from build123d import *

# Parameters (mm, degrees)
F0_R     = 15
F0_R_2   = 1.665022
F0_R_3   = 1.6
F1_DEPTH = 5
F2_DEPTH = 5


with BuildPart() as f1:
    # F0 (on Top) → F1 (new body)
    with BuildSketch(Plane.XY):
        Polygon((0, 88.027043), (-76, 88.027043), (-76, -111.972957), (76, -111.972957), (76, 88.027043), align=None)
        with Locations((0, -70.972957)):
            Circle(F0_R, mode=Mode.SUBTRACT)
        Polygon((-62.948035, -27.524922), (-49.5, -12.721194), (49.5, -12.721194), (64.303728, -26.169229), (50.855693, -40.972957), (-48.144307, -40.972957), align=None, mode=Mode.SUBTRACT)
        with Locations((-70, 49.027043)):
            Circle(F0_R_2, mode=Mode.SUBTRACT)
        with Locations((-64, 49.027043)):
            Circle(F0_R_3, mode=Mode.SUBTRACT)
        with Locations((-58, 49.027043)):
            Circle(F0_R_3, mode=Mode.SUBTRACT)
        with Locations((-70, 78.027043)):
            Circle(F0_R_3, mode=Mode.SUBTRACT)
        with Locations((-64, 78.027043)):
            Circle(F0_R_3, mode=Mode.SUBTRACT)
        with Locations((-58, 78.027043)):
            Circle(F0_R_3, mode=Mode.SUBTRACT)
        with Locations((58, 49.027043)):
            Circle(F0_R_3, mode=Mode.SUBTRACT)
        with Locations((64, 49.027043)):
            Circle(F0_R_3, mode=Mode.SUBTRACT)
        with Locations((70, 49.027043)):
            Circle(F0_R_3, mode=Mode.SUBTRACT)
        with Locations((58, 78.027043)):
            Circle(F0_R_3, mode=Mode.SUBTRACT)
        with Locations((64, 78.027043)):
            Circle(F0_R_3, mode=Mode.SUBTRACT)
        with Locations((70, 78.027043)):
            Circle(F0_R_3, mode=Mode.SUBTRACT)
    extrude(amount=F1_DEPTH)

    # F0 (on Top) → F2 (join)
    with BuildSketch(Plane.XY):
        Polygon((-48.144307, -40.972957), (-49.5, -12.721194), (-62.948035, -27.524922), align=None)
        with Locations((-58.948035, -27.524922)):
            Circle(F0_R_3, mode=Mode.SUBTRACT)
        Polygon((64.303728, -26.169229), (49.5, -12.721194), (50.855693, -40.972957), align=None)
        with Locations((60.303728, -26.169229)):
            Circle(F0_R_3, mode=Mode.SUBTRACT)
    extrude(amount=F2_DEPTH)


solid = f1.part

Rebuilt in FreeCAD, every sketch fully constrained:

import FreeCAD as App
import Part
import Sketcher

V = App.Vector
Q = App.Units.Quantity


def add_polygon(sketch, points):
    """Adds a closed chain of lines whose ends are joined by coincident constraints."""
    first, n = sketch.GeometryCount, len(points)
    for a, b in zip(points, points[1:] + points[:1]):
        sketch.addGeometry(Part.LineSegment(App.Vector(*a, 0), App.Vector(*b, 0)), False)
    for i in range(n):
        sketch.addConstraint(Sketcher.Constraint("Coincident", first + i, 2, first + (i + 1) % n, 1))

doc = App.newDocument("Part")
params = doc.addObject("Spreadsheet::Sheet", "Params")
for row, (alias, value) in enumerate([
    ("sketch1_diameter", "30 mm"),
    ("sketch1_diameter2", "3.2 mm"),
    ("sketch1_width", "152 mm"),
    ("sketch1_width2", "99 mm"),
    ("sketch1_height", "200 mm"),
    ("pad1_length", "5 mm"),
    ("sketch2_diameter", "3.2 mm"),
    ("sketch2_length", "20 mm"),
    ("pad2_length", "5 mm"),
], start=1):
    params.set(f"A{row}", alias)
    params.set(f"B{row}", "=" + value)
    params.setAlias(f"B{row}", alias)

body = doc.addObject("PartDesign::Body", "Body")

sketch1 = body.newObject("Sketcher::SketchObject", "Sketch")
sketch1.AttachmentSupport = (doc.getObject("XY_Plane"), [""])
sketch1.MapMode = "FlatFace"
add_polygon(sketch1, [(-76, 88), (-76, -112), (76, -112), (76, 88)])
sketch1.addGeometry(Part.Circle(V(0, -71, 0), V(0, 0, 1), 15), False)
add_polygon(sketch1, [(-48.1, -41), (-62.9, -27.5), (-49.5, -12.7), (49.5, -12.7), (64.3, -26.2), (50.9, -41)])
sketch1.addGeometry(Part.Circle(V(-70, 49, 0), V(0, 0, 1), 1.7), False)
sketch1.addGeometry(Part.Circle(V(-64, 49, 0), V(0, 0, 1), 1.6), False)
sketch1.addGeometry(Part.Circle(V(-58, 49, 0), V(0, 0, 1), 1.6), False)
sketch1.addGeometry(Part.Circle(V(-70, 78, 0), V(0, 0, 1), 1.6), False)
sketch1.addGeometry(Part.Circle(V(-64, 78, 0), V(0, 0, 1), 1.6), False)
sketch1.addGeometry(Part.Circle(V(-58, 78, 0), V(0, 0, 1), 1.6), False)
sketch1.addGeometry(Part.Circle(V(58, 49, 0), V(0, 0, 1), 1.6), False)
sketch1.addGeometry(Part.Circle(V(64, 49, 0), V(0, 0, 1), 1.6), False)
sketch1.addGeometry(Part.Circle(V(70, 49, 0), V(0, 0, 1), 1.6), False)
sketch1.addGeometry(Part.Circle(V(58, 78, 0), V(0, 0, 1), 1.6), False)
sketch1.addGeometry(Part.Circle(V(64, 78, 0), V(0, 0, 1), 1.6), False)
sketch1.addGeometry(Part.Circle(V(70, 78, 0), V(0, 0, 1), 1.6), False)
sketch1.addConstraint(Sketcher.Constraint("Vertical", 0))
sketch1.addConstraint(Sketcher.Constraint("Horizontal", 1))
sketch1.addConstraint(Sketcher.Constraint("Vertical", 2))
sketch1.addConstraint(Sketcher.Constraint("Horizontal", 3))
sketch1.addConstraint(Sketcher.Constraint("Horizontal", 7))
sketch1.addConstraint(Sketcher.Constraint("Horizontal", 10))
sketch1.addConstraint(Sketcher.Constraint("Equal", 12, 13))
sketch1.addConstraint(Sketcher.Constraint("Equal", 13, 14))
sketch1.addConstraint(Sketcher.Constraint("Equal", 14, 15))
sketch1.addConstraint(Sketcher.Constraint("Equal", 15, 16))
sketch1.addConstraint(Sketcher.Constraint("Equal", 16, 17))
sketch1.addConstraint(Sketcher.Constraint("Equal", 17, 18))
sketch1.addConstraint(Sketcher.Constraint("Equal", 18, 19))
sketch1.addConstraint(Sketcher.Constraint("Equal", 19, 20))
sketch1.addConstraint(Sketcher.Constraint("Equal", 20, 21))
sketch1.addConstraint(Sketcher.Constraint("Equal", 21, 22))
sketch1.addConstraint(Sketcher.Constraint("Symmetric", 13, 3, 17, 3, -2))
sketch1.addConstraint(Sketcher.Constraint("Symmetric", 12, 3, 18, 3, -2))
sketch1.addConstraint(Sketcher.Constraint("Symmetric", 11, 3, 19, 3, -2))
sketch1.addConstraint(Sketcher.Constraint("Symmetric", 16, 3, 20, 3, -2))
sketch1.addConstraint(Sketcher.Constraint("Symmetric", 15, 3, 21, 3, -2))
sketch1.addConstraint(Sketcher.Constraint("Symmetric", 14, 3, 22, 3, -2))
sketch1.addConstraint(Sketcher.Constraint("PointOnObject", 4, 3, -2))
sketch1.addConstraint(Sketcher.Constraint("Perpendicular", 5, 6))
sketch1.addConstraint(Sketcher.Constraint("Perpendicular", 6, 8))
sketch1.addConstraint(Sketcher.Constraint("Perpendicular", 8, 9))
sketch1.addConstraint(Sketcher.Constraint("Horizontal", 11, 3, 12, 3))
sketch1.addConstraint(Sketcher.Constraint("Horizontal", 12, 3, 13, 3))
sketch1.addConstraint(Sketcher.Constraint("Horizontal", 14, 3, 15, 3))
sketch1.addConstraint(Sketcher.Constraint("Horizontal", 15, 3, 16, 3))
sketch1.addConstraint(Sketcher.Constraint("Vertical", 11, 3, 14, 3))
sketch1.addConstraint(Sketcher.Constraint("Vertical", 12, 3, 15, 3))
sketch1.addConstraint(Sketcher.Constraint("Vertical", 13, 3, 16, 3))
sketch1.addConstraint(Sketcher.Constraint("Equal", 7, 10))
sketch1.addConstraint(Sketcher.Constraint("Equal", 5, 6))
sketch1.addConstraint(Sketcher.Constraint("Diameter", 4, Q("30 mm")))
sketch1.addConstraint(Sketcher.Constraint("Diameter", 12, Q("3.2 mm")))
sketch1.addConstraint(Sketcher.Constraint("DistanceX", 1, 1, 1, 2, Q("152 mm")))
sketch1.addConstraint(Sketcher.Constraint("DistanceX", 7, 1, 7, 2, Q("99 mm")))
sketch1.addConstraint(Sketcher.Constraint("DistanceY", 0, 2, 0, 1, Q("200 mm")))
sketch1.addConstraint(Sketcher.Constraint("Distance", 5, Q("20 mm")))
sketch1.addConstraint(Sketcher.Constraint("DistanceX", 11, 3, -1, 1, Q("70 mm")))
sketch1.addConstraint(Sketcher.Constraint("DistanceX", 12, 3, -1, 1, Q("64 mm")))
sketch1.addConstraint(Sketcher.Constraint("DistanceX", 13, 3, -1, 1, Q("58 mm")))
sketch1.addConstraint(Sketcher.Constraint("DistanceX", 0, 2, -1, 1, Q("76 mm")))
sketch1.addConstraint(Sketcher.Constraint("DistanceY", 4, 3, 11, 3, Q("120 mm")))
sketch1.addConstraint(Sketcher.Constraint("DistanceY", 11, 3, 14, 3, Q("29 mm")))
sketch1.addConstraint(Sketcher.Constraint("DistanceY", 0, 2, 4, 3, Q("41 mm")))
sketch1.addConstraint(Sketcher.Constraint("DistanceY", 4, 3, 9, 2, Q("30 mm")))
sketch1.addConstraint(Sketcher.Constraint("DistanceX", 6, 2, -1, 1, Q("49.5 mm")))
sketch1.addConstraint(Sketcher.Constraint("Diameter", 11, Q("3.330044 mm")))
sketch1.addConstraint(Sketcher.Constraint("DistanceY", 5, 2, -1, 1, Q("27.524922 mm")))
sketch1.addConstraint(Sketcher.Constraint("DistanceX", -1, 1, 8, 2, Q("64.303728 mm")))
sketch1.setExpression("Constraints[45]", "Params.sketch1_diameter")
sketch1.setExpression("Constraints[46]", "Params.sketch1_diameter2")
sketch1.setExpression("Constraints[47]", "Params.sketch1_width")
sketch1.setExpression("Constraints[48]", "Params.sketch1_width2")
sketch1.setExpression("Constraints[49]", "Params.sketch1_height")
pad1 = body.newObject("PartDesign::Pad", "Pad")
pad1.Profile = sketch1
pad1.setExpression("Length", "Params.pad1_length")

sketch2 = body.newObject("Sketcher::SketchObject", "Sketch001")
sketch2.AttachmentSupport = (doc.getObject("XY_Plane"), [""])
sketch2.MapMode = "FlatFace"
add_polygon(sketch2, [(-48.1, -41), (-49.5, -12.7), (-62.9, -27.5)])
sketch2.addGeometry(Part.Circle(V(-58.9, -27.5, 0), V(0, 0, 1), 1.6), False)
add_polygon(sketch2, [(64.3, -26.2), (49.5, -12.7), (50.9, -41)])
sketch2.addGeometry(Part.Circle(V(60.3, -26.2, 0), V(0, 0, 1), 1.6), False)
sketch2.addConstraint(Sketcher.Constraint("Equal", 3, 7))
sketch2.addConstraint(Sketcher.Constraint("Symmetric", 0, 2, 4, 2, -2))
sketch2.addConstraint(Sketcher.Constraint("Perpendicular", 1, 2))
sketch2.addConstraint(Sketcher.Constraint("Parallel", 2, 4))
sketch2.addConstraint(Sketcher.Constraint("Parallel", 0, 5))
sketch2.addConstraint(Sketcher.Constraint("Perpendicular", 4, 6))
sketch2.addConstraint(Sketcher.Constraint("Horizontal", 3, 3, 1, 2))
sketch2.addConstraint(Sketcher.Constraint("Horizontal", 2, 2, 5, 2))
sketch2.addConstraint(Sketcher.Constraint("Horizontal", 7, 3, 6, 2))
sketch2.addConstraint(Sketcher.Constraint("Equal", 1, 2))
sketch2.addConstraint(Sketcher.Constraint("Diameter", 3, Q("3.2 mm")))
sketch2.addConstraint(Sketcher.Constraint("Distance", 1, Q("20 mm")))
sketch2.addConstraint(Sketcher.Constraint("DistanceX", 1, 2, 3, 3, Q("4 mm")))
sketch2.addConstraint(Sketcher.Constraint("DistanceX", 0, 2, 4, 2, Q("99 mm")))
sketch2.addConstraint(Sketcher.Constraint("DistanceX", 7, 3, 6, 2, Q("4 mm")))
sketch2.addConstraint(Sketcher.Constraint("DistanceY", 3, 3, -1, 1, Q("27.524922 mm")))
sketch2.addConstraint(Sketcher.Constraint("DistanceY", 7, 3, -1, 1, Q("26.169229 mm")))
sketch2.setExpression("Constraints[16]", "Params.sketch2_diameter")
sketch2.setExpression("Constraints[17]", "Params.sketch2_length")
pad2 = body.newObject("PartDesign::Pad", "Pad001")
pad2.Profile = sketch2
pad2.setExpression("Length", "Params.pad2_length")

doc.recompute()
